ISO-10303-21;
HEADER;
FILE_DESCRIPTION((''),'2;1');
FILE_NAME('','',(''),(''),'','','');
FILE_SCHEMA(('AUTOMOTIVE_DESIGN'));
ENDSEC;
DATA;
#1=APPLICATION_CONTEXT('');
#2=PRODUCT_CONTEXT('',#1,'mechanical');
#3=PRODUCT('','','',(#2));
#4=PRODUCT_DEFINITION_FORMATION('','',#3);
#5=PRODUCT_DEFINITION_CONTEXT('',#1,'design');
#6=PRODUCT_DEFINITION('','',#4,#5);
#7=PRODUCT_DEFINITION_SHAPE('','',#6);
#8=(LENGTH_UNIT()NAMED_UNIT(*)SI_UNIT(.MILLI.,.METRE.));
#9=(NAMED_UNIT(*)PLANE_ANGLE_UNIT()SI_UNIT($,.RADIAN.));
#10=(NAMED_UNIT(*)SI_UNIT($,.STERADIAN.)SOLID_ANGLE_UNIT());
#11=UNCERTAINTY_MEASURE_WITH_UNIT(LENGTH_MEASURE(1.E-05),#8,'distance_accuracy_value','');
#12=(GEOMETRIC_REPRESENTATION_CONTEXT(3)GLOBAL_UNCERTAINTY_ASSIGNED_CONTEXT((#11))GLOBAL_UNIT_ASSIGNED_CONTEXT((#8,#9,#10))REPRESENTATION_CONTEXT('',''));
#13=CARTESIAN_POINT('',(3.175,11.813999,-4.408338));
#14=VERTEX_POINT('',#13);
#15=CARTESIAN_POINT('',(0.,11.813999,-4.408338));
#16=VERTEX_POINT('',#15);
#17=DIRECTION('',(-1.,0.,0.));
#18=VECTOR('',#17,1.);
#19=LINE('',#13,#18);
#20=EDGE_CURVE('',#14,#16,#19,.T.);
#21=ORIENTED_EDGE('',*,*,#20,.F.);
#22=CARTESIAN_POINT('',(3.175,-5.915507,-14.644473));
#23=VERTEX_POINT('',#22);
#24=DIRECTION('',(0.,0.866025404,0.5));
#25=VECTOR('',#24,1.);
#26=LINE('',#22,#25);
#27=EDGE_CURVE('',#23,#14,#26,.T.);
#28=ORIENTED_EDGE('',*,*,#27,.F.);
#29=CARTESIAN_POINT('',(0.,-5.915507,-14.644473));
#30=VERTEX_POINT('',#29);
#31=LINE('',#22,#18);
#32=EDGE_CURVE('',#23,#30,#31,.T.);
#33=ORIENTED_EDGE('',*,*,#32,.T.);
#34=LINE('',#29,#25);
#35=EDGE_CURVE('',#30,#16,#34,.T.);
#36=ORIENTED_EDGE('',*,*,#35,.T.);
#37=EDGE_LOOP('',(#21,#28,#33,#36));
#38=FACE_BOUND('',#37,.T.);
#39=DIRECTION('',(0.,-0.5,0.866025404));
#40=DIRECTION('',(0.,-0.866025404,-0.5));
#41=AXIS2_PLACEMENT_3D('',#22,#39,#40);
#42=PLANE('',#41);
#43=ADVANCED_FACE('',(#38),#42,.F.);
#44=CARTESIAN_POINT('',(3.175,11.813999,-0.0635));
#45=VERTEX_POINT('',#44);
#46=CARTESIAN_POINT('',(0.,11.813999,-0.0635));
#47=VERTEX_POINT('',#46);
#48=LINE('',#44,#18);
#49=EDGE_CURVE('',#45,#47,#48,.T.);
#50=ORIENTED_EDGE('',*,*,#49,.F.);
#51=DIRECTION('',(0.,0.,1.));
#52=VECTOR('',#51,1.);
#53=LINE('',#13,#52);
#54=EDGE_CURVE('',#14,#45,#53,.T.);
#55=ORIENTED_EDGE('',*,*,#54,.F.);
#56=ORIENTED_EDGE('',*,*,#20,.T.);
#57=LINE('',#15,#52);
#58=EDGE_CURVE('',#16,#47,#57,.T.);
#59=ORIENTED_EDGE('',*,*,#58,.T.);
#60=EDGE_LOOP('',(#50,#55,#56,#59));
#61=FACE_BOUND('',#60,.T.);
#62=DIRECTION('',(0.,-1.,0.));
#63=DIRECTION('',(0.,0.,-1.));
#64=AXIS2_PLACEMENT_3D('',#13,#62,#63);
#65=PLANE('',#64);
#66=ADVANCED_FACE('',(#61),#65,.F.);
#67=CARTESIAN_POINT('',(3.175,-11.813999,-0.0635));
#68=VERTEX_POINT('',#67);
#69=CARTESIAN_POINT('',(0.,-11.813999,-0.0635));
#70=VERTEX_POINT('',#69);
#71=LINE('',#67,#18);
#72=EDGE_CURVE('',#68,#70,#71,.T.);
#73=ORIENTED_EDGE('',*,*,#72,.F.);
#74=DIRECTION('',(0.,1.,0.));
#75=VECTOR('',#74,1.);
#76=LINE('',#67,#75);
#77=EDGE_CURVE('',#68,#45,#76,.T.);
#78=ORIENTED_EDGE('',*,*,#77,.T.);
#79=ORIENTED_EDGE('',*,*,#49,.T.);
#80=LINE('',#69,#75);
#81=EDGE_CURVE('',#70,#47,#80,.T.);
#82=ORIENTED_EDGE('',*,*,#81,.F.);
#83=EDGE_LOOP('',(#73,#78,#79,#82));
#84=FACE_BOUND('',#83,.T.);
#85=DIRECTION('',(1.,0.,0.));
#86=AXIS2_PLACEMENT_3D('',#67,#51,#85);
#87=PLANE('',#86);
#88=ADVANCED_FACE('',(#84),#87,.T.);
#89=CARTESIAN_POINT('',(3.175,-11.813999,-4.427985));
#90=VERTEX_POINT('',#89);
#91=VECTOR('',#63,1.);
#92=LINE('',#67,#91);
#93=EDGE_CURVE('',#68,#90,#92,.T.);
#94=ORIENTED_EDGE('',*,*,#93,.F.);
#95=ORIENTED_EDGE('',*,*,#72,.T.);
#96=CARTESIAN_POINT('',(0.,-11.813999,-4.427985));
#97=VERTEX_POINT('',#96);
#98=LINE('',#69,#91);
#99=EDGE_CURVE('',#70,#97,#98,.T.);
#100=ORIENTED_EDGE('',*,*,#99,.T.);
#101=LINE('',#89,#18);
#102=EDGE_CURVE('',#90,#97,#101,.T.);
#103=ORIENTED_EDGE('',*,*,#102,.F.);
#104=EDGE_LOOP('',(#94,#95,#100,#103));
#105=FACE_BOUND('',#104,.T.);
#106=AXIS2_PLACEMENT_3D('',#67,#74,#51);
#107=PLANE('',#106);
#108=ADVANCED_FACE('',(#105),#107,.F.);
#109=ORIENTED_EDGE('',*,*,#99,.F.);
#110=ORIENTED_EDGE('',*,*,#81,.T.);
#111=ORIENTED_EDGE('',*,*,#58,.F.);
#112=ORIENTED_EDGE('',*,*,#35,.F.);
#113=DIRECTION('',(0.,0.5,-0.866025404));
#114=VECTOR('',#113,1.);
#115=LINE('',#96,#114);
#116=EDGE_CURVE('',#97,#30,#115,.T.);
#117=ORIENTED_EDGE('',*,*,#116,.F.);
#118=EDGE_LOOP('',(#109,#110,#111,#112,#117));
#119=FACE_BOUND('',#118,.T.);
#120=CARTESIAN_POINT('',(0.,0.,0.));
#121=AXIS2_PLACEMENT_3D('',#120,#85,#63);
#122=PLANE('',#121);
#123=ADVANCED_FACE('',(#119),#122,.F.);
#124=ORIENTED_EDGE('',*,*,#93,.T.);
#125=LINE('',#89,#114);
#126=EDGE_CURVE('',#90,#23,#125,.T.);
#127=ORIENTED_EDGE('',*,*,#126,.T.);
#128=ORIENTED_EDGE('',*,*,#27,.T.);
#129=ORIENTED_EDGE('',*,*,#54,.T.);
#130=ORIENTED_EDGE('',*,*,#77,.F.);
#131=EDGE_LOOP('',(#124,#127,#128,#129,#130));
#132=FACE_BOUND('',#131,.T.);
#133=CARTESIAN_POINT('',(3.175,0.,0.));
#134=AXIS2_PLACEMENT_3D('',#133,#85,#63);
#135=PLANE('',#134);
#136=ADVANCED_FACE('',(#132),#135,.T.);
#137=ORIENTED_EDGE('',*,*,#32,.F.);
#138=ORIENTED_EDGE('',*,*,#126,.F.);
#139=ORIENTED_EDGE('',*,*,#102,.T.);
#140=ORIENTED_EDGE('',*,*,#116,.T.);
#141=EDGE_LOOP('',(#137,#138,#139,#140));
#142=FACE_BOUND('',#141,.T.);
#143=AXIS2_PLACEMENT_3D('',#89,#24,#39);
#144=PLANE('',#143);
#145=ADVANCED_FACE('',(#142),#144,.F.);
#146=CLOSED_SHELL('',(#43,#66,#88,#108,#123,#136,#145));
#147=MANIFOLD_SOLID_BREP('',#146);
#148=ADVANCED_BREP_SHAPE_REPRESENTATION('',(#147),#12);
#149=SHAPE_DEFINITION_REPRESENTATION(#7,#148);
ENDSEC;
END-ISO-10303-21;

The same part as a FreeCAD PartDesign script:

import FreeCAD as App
import Part
import Sketcher
Q = App.Units.Quantity


def add_polygon(sketch, points):
    """Adds a closed chain of lines whose ends are joined by coincident constraints."""
    first, n = sketch.GeometryCount, len(points)
    for a, b in zip(points, points[1:] + points[:1]):
        sketch.addGeometry(Part.LineSegment(App.Vector(*a, 0), App.Vector(*b, 0)), False)
    for i in range(n):
        sketch.addConstraint(Sketcher.Constraint("Coincident", first + i, 2, first + (i + 1) % n, 1))

doc = App.newDocument("Part")
body = doc.addObject("PartDesign::Body", "Body")

sketch1 = doc.addObject("Sketcher::SketchObject", "Sketch")
body.addObject(sketch1)
sketch1.AttachmentSupport = (doc.YZ_Plane, [""])
sketch1.MapMode = "FlatFace"
add_polygon(sketch1, [(-11.8, -4.4), (-5.9, -14.6), (11.8, -4.4), (11.8, -0.1), (-11.8, -0.1)])
sketch1.addConstraint(Sketcher.Constraint("Vertical", 2))
sketch1.addConstraint(Sketcher.Constraint("Horizontal", 3))
sketch1.addConstraint(Sketcher.Constraint("Vertical", 4))
sketch1.addConstraint(Sketcher.Constraint("Perpendicular", 0, 1))
sketch1.addConstraint(Sketcher.Constraint("Angle", 0, Q("-60 deg")))
sketch1.addConstraint(Sketcher.Constraint("DistanceY", 2, 2, -1, 1, Q("0.0025 in")))
sketch1.addConstraint(Sketcher.Constraint("DistanceY", 2, 1, 2, 2, Q("4.344838 mm")))
sketch1.addConstraint(Sketcher.Constraint("DistanceX", -1, 1, 1, 2, Q("11.813999 mm")))
sketch1.addConstraint(Sketcher.Constraint("DistanceX", 3, 2, -1, 1, Q("11.813999 mm")))
sketch1.addConstraint(Sketcher.Constraint("Distance", 1, Q("20.47227 mm")))
pad1 = doc.addObject("PartDesign::Pad", "Pad")
body.addObject(pad1)
pad1.Profile = sketch1
pad1.Length = Q("0.125 in")

doc.recompute()
